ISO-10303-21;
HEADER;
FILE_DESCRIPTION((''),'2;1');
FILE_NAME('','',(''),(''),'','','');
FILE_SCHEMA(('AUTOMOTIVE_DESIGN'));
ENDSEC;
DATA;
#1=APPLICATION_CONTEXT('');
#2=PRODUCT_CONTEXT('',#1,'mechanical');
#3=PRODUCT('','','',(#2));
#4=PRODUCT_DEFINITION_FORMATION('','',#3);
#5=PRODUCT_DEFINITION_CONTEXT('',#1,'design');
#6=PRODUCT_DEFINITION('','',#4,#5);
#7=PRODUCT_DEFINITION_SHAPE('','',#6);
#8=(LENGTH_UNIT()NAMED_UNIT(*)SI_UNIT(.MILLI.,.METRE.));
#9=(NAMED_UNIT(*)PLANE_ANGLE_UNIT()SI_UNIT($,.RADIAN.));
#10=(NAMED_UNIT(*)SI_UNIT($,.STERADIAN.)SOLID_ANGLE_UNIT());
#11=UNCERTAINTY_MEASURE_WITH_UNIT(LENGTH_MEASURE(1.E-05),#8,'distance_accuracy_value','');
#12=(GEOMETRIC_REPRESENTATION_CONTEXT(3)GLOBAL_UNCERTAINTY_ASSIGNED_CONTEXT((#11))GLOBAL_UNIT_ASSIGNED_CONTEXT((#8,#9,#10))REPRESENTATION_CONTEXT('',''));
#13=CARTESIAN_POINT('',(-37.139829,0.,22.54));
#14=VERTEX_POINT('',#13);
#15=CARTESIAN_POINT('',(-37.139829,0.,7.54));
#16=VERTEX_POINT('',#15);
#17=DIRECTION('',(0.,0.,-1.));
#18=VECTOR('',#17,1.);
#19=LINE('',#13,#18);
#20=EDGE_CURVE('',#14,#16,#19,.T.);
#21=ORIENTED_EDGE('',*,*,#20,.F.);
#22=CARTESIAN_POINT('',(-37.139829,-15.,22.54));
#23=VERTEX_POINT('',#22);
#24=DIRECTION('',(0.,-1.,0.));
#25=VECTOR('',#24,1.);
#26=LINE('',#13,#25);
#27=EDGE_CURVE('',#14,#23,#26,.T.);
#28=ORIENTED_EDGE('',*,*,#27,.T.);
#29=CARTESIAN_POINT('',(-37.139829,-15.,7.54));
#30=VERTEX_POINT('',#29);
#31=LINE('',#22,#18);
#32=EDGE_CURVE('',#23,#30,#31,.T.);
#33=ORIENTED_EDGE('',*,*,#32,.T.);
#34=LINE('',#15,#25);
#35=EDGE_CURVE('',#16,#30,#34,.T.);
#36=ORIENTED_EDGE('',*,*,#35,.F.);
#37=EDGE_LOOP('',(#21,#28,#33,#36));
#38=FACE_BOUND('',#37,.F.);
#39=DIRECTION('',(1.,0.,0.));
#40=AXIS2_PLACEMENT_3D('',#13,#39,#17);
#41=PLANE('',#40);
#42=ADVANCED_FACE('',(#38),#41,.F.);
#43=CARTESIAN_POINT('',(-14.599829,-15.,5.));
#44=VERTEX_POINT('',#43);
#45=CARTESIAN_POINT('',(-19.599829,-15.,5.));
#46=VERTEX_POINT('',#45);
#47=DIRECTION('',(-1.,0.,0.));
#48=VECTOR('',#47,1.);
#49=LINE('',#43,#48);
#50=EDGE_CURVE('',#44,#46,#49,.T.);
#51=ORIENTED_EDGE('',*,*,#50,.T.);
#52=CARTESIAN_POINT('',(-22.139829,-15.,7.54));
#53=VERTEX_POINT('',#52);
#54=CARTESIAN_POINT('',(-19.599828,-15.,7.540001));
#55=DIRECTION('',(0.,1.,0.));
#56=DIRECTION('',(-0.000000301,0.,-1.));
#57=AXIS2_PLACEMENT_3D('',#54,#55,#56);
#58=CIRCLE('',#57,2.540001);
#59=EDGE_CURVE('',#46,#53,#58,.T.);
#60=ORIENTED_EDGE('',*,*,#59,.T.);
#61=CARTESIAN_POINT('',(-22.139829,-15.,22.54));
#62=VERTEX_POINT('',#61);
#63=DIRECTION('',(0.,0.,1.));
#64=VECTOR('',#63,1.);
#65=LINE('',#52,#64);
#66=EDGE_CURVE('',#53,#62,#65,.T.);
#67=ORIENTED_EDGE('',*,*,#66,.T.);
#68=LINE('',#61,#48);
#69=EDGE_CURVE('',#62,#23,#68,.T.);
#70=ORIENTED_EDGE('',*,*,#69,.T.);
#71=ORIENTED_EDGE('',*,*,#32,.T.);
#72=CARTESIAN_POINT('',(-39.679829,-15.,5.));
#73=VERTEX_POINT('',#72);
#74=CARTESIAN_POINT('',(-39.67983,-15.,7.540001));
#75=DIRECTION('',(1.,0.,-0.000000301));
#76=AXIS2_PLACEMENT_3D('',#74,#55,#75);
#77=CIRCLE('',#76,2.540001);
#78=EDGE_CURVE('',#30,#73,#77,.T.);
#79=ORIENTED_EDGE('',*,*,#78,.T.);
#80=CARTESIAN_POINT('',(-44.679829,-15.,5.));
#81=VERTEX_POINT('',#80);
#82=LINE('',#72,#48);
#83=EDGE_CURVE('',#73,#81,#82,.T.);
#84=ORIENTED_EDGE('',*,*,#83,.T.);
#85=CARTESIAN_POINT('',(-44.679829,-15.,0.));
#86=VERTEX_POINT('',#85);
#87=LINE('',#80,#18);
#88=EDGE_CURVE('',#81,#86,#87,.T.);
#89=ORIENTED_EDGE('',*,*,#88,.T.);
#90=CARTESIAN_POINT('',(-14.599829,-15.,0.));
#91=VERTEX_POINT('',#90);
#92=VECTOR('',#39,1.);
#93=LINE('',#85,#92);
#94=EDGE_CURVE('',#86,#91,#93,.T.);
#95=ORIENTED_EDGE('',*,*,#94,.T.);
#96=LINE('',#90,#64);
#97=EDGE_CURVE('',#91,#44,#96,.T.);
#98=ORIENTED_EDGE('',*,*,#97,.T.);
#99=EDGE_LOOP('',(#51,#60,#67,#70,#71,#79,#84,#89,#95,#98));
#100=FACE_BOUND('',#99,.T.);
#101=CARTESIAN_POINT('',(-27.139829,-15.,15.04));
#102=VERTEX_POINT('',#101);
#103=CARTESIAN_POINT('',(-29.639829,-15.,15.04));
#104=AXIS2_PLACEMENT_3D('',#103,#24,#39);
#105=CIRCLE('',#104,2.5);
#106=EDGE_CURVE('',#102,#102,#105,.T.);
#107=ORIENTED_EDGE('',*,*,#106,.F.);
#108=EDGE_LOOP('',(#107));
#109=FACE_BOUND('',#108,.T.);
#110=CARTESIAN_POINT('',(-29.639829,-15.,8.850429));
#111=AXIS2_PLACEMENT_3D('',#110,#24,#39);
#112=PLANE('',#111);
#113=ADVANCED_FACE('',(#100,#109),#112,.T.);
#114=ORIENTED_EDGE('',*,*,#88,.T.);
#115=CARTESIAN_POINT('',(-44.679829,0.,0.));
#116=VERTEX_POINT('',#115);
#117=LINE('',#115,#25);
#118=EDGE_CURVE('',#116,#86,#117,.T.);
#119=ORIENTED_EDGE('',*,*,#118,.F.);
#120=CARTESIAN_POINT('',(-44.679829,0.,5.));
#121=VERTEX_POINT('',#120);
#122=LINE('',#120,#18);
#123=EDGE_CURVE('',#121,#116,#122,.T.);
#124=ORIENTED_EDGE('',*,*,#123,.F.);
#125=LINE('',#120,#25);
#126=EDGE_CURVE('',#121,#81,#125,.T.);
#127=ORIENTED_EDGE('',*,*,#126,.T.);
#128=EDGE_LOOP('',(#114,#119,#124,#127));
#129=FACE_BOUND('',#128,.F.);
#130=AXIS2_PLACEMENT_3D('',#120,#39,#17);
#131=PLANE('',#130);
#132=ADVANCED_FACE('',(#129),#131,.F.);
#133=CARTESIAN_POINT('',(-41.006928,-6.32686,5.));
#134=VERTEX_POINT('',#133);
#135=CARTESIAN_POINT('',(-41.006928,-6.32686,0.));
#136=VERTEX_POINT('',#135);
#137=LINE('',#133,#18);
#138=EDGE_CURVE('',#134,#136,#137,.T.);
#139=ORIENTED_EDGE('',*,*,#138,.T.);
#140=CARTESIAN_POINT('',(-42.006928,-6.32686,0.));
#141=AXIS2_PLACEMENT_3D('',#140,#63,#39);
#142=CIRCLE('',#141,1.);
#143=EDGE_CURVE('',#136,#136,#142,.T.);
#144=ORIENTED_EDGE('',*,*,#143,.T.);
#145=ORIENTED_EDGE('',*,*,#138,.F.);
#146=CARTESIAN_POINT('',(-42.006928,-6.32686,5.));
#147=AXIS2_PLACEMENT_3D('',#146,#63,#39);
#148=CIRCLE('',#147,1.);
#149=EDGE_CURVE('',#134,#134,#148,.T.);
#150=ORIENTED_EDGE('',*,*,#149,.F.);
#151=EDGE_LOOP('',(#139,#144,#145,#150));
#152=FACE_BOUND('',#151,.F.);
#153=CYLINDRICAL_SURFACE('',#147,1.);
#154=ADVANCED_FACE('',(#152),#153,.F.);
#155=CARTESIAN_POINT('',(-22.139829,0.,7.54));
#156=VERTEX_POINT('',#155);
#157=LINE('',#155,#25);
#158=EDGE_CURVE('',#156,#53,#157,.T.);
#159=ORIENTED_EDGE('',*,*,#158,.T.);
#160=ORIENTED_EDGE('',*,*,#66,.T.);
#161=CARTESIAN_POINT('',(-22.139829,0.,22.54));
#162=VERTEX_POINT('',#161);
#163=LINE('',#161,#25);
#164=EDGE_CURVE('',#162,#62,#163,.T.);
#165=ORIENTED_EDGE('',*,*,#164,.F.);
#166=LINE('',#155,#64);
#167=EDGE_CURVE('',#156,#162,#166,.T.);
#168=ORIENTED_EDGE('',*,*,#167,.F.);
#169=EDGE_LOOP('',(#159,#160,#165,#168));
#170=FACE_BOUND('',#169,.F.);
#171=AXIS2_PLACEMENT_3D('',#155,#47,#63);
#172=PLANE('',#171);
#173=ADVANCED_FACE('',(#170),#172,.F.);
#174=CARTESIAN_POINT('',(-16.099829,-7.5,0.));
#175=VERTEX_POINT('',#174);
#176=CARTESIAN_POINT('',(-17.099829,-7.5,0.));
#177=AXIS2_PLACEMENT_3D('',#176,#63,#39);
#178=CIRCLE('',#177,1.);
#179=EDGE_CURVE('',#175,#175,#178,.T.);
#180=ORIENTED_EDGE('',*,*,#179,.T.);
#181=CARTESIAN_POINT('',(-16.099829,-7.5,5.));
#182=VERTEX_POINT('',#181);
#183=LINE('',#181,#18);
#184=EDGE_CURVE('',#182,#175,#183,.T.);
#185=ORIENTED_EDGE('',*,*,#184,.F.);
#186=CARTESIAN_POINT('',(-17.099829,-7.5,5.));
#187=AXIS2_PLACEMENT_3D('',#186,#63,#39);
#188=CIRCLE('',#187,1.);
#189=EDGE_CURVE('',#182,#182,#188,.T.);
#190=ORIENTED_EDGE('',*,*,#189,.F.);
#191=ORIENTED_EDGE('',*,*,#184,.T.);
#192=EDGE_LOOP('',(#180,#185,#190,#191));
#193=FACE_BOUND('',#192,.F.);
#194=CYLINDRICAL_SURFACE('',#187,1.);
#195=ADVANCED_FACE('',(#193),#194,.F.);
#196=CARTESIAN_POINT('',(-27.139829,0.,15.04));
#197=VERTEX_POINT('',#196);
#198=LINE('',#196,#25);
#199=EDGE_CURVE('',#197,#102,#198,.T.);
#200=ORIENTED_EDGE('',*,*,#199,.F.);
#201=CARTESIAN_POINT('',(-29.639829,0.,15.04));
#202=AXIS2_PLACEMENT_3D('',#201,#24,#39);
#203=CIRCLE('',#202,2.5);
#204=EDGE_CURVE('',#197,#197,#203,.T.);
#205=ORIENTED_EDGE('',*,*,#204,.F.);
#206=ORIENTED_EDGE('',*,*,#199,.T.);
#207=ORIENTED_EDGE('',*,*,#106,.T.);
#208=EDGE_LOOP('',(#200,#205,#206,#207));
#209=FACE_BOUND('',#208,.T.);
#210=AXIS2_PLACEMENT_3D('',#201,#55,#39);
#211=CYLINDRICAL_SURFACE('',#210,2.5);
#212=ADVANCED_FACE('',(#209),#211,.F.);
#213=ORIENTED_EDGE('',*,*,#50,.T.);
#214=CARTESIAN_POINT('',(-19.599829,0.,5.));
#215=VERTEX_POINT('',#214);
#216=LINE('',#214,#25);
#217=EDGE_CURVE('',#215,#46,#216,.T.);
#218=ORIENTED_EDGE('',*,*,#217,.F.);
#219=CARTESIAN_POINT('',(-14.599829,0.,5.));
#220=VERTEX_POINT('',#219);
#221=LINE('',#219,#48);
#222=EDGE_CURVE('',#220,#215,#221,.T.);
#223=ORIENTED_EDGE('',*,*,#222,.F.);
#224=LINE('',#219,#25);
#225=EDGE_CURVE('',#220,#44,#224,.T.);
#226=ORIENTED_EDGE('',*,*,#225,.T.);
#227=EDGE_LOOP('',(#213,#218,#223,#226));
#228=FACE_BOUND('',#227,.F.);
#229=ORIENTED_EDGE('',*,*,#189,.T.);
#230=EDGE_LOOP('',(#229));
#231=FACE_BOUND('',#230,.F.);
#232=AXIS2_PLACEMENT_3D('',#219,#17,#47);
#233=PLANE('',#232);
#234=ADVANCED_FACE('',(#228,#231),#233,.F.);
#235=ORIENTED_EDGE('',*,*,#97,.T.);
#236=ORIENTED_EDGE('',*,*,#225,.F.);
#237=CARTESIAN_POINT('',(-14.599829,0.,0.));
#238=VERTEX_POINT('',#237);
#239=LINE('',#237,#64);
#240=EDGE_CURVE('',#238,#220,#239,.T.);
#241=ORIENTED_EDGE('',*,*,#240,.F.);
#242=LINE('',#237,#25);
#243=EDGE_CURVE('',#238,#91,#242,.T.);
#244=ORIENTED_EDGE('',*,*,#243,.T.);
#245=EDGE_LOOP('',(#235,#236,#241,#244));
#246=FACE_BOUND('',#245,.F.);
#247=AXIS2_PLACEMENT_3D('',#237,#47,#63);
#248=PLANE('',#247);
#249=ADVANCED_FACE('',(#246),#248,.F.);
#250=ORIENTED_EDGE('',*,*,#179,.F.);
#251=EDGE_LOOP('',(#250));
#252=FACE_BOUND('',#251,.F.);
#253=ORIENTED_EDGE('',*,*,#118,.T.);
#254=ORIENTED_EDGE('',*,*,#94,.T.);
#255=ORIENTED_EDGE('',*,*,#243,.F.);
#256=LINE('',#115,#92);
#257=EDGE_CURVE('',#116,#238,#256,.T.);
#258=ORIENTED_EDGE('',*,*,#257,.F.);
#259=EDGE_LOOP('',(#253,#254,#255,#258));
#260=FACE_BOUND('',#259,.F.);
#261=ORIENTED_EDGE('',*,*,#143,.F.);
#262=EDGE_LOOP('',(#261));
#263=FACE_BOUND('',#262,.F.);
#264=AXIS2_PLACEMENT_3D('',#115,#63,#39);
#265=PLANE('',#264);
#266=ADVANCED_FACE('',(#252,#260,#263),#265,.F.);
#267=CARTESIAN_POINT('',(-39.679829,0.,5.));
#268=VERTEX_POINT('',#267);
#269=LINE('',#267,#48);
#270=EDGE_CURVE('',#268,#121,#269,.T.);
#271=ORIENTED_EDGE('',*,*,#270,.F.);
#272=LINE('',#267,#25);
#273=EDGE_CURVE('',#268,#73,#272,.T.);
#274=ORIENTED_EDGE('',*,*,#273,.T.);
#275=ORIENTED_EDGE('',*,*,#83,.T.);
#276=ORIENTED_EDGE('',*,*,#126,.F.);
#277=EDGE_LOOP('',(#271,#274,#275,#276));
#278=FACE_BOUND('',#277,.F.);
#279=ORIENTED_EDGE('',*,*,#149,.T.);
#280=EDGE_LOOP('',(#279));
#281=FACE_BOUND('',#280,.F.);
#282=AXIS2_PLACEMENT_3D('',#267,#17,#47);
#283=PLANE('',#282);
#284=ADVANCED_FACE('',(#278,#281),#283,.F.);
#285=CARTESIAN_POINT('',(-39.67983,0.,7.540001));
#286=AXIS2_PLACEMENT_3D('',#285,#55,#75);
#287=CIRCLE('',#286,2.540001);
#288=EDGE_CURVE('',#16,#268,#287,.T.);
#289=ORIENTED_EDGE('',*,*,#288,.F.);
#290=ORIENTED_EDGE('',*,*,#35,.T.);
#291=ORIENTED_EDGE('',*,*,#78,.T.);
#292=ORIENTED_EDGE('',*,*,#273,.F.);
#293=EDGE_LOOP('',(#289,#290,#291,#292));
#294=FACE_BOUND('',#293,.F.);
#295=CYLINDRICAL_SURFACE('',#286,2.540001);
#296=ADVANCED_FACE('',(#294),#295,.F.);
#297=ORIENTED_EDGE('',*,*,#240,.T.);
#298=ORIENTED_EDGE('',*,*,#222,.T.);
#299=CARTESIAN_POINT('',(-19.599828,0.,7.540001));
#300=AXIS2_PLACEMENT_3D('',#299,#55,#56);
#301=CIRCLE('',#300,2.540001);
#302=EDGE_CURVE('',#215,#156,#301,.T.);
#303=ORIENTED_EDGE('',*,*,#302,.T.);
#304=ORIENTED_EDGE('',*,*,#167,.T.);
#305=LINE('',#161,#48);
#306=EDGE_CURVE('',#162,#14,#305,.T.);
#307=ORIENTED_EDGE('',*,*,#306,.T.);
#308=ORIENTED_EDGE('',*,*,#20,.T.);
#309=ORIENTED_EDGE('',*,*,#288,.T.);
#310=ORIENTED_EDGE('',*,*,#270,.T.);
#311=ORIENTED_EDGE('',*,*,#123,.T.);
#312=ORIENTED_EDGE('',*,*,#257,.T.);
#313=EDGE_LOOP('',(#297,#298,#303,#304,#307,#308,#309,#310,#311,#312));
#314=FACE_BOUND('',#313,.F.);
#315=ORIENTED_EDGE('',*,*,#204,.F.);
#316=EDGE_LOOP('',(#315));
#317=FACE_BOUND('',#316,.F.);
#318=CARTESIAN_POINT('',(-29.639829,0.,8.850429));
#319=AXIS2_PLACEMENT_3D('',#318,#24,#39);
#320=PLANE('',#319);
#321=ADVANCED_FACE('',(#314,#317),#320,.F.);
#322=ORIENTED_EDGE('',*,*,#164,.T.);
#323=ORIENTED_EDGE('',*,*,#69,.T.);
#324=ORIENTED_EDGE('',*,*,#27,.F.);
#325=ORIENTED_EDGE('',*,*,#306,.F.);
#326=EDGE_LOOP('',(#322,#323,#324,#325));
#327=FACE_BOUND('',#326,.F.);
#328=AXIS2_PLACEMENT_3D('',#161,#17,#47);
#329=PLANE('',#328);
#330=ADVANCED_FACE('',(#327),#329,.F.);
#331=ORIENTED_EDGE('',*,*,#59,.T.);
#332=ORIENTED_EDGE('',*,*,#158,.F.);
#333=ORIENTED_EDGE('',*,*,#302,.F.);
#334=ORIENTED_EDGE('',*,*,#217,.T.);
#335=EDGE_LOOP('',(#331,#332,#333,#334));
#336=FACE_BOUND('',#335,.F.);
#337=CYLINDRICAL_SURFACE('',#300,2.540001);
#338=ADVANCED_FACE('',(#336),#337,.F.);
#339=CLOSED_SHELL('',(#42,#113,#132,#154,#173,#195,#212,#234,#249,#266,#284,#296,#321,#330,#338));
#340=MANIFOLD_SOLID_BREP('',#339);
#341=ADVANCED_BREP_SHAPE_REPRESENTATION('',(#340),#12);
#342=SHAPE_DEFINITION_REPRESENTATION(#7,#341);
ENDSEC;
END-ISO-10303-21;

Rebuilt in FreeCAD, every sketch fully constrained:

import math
import FreeCAD as App
import Part
import Sketcher
from FreeCAD import Vector

doc = App.newDocument("Part")
body = doc.addObject("PartDesign::Body", "Body")

sketch1 = body.newObject("Sketcher::SketchObject", "Sketch")
sketch1.AttachmentSupport = (doc.getObject("XZ_Plane"), [""])
sketch1.MapMode = "FlatFace"
sketch1.addGeometry([
    Part.LineSegment(Vector(-44.7, 5, 0), Vector(-44.7, 0, 0)),
    Part.LineSegment(Vector(-44.7, 0, 0), Vector(-14.6, 0, 0)),
    Part.LineSegment(Vector(-14.6, 0, 0), Vector(-14.6, 5, 0)),
    Part.LineSegment(Vector(-14.6, 5, 0), Vector(-19.6, 5, 0)),
    Part.ArcOfCircle(Part.Circle(Vector(-19.6, 7.5, 0), Vector(0, 0, 1), 2.5), math.radians(-180), math.radians(-90)),
    Part.LineSegment(Vector(-22.1, 7.5, 0), Vector(-22.1, 22.5, 0)),
    Part.LineSegment(Vector(-22.1, 22.5, 0), Vector(-37.1, 22.5, 0)),
    Part.LineSegment(Vector(-37.1, 22.5, 0), Vector(-37.1, 7.5, 0)),
    Part.ArcOfCircle(Part.Circle(Vector(-39.7, 7.5, 0), Vector(0, 0, 1), 2.5), math.radians(-90), math.radians(0)),
    Part.LineSegment(Vector(-39.7, 5, 0), Vector(-44.7, 5, 0)),
    Part.Circle(Vector(-29.6, 15, 0), Vector(0, 0, 1), 2.5),
], False)
sketch1.addConstraint([
    Sketcher.Constraint("Coincident", 0, 2, 1, 1),
    Sketcher.Constraint("Coincident", 1, 2, 2, 1),
    Sketcher.Constraint("Coincident", 2, 2, 3, 1),
    Sketcher.Constraint("Tangent", 3, 2, 4, 2),
    Sketcher.Constraint("Tangent", 4, 1, 5, 1),
    Sketcher.Constraint("Coincident", 5, 2, 6, 1),
    Sketcher.Constraint("Coincident", 6, 2, 7, 1),
    Sketcher.Constraint("Tangent", 7, 2, 8, 2),
    Sketcher.Constraint("Tangent", 8, 1, 9, 1),
    Sketcher.Constraint("Coincident", 9, 2, 0, 1),
    Sketcher.Constraint("Vertical", 0),
    Sketcher.Constraint("Horizontal", 1),
    Sketcher.Constraint("Vertical", 2),
    Sketcher.Constraint("Horizontal", 3),
    Sketcher.Constraint("Vertical", 5),
    Sketcher.Constraint("Horizontal", 6),
    Sketcher.Constraint("Vertical", 7),
    Sketcher.Constraint("Horizontal", 9),
    Sketcher.Constraint("Equal", 4, 8),
    Sketcher.Constraint("PointOnObject", 0, 2, -1),
    Sketcher.Constraint("Horizontal", 4, 3, 8, 3),
    Sketcher.Constraint("Equal", 3, 9),
    Sketcher.Constraint("Equal", 9, 0),
    Sketcher.Constraint("Equal", 6, 5),
    Sketcher.Constraint("Diameter", 10, 5.0),
    Sketcher.Constraint("DistanceX", 3, 2, 3, 1, 5.0),
    Sketcher.Constraint("DistanceX", 6, 2, 6, 1, 15.0),
    Sketcher.Constraint("Radius", 4, 2.540001),
    Sketcher.Constraint("DistanceY", 4, 3, 10, 3, 7.499999),
    Sketcher.Constraint("DistanceX", 10, 3, 4, 1, 7.5),
    Sketcher.Constraint("DistanceX", 4, 3, -1, 1, 19.599828),
])
pad1 = body.newObject("PartDesign::Pad", "Pad")
pad1.Profile = sketch1
pad1.Length = 15

sketch2 = body.newObject("Sketcher::SketchObject", "Sketch001")
sketch2.AttachmentSupport = (doc.getObject("XY_Plane"), [""])
sketch2.MapMode = "FlatFace"
sketch2.AttachmentOffset = App.Placement(Vector(0, 0, 5), App.Rotation())
sketch2.addGeometry([
    Part.Circle(Vector(-17.1, -7.5, 0), Vector(0, 0, 1), 1),
    Part.Circle(Vector(-42, -6.3, 0), Vector(0, 0, 1), 1),
], False)
sketch2.addConstraint([
    Sketcher.Constraint("Equal", 0, 1),
    Sketcher.Constraint("Diameter", 0, 2.0),
    Sketcher.Constraint("DistanceY", 0, 3, -1, 1, 7.5),
    Sketcher.Constraint("DistanceX", 1, 3, 0, 3, 24.907099),
    Sketcher.Constraint("DistanceX", 0, 3, -1, 1, 17.099829),
    Sketcher.Constraint("DistanceY", 1, 3, -1, 1, 6.32686),
])
pocket1 = body.newObject("PartDesign::Pocket", "Pocket")
pocket1.Profile = sketch2
pocket1.Length = 5

doc.recompute()
